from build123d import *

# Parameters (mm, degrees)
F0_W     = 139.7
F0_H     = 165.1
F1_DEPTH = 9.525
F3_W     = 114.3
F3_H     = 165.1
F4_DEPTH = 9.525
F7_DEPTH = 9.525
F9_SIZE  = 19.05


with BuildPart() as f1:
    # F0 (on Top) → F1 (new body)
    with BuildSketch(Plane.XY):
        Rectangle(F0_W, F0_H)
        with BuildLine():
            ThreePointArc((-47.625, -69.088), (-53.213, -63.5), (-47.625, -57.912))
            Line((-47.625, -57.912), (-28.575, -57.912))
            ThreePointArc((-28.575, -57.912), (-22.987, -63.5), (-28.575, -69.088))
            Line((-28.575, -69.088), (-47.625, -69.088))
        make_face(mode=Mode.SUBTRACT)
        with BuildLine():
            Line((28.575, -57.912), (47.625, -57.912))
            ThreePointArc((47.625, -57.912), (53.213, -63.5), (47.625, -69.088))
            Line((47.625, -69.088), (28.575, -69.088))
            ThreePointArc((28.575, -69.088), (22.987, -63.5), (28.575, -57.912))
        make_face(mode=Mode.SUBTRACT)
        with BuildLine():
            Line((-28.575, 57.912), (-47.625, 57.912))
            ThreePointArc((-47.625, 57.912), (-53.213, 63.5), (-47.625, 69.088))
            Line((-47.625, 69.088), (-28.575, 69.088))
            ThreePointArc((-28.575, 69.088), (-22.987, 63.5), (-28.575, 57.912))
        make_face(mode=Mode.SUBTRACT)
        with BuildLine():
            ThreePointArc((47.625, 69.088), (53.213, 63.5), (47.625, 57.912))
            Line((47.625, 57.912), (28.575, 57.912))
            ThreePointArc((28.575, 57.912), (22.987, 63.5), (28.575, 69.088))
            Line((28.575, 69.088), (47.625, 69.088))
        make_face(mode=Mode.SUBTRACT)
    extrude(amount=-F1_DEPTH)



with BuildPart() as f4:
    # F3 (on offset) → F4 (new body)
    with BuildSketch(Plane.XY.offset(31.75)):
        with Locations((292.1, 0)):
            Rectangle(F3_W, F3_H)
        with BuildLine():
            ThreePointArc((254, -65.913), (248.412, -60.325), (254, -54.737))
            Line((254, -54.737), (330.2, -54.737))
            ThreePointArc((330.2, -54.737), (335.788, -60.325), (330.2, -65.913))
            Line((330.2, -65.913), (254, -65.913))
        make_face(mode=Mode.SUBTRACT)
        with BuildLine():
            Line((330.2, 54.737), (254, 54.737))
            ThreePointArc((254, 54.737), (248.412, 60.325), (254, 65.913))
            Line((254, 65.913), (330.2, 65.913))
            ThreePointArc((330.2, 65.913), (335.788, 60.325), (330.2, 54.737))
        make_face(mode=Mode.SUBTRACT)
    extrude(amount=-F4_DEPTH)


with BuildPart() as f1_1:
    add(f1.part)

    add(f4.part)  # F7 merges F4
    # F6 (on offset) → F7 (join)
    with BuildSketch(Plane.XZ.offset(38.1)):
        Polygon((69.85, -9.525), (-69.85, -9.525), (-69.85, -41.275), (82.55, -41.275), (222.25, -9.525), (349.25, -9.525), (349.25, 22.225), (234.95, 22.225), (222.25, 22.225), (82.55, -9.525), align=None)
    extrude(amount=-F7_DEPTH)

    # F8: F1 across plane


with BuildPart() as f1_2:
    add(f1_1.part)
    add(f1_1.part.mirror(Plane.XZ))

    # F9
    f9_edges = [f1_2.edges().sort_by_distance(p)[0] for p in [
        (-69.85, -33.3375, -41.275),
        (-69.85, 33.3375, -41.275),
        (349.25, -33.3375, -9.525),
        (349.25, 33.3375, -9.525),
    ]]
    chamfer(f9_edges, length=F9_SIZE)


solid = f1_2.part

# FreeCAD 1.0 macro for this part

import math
import FreeCAD as App
import Part
import Sketcher
Q = App.Units.Quantity


def edges_at(feature, points):
    """Names of the edges that pass closest to the given points."""
    edges = feature.Shape.Edges
    near = lambda p: min(range(len(edges)), key=lambda i: edges[i].distToShape(Part.Vertex(*p))[0])
    return sorted({f"Edge{near(p) + 1}" for p in points})

doc = App.newDocument("Part")
body = doc.addObject("PartDesign::Body", "Body")

sketch1 = body.newObject("Sketcher::SketchObject", "Sketch")
sketch1.AttachmentSupport = (doc.getObject("XY_Plane"), [""])
sketch1.MapMode = "FlatFace"
sketch1.addGeometry([
    Part.LineSegment(App.Vector(-70, 83, 0), App.Vector(-70, -83, 0)),
    Part.LineSegment(App.Vector(-70, -83, 0), App.Vector(70, -83, 0)),
    Part.LineSegment(App.Vector(70, -83, 0), App.Vector(70, 83, 0)),
    Part.LineSegment(App.Vector(70, 83, 0), App.Vector(-70, 83, 0)),
    Part.LineSegment(App.Vector(-29, -69, 0), App.Vector(-48, -69, 0)),
    Part.ArcOfCircle(Part.Circle(App.Vector(-48, -64, 0), App.Vector(0, 0, 1), 6), math.radians(90), math.radians(270)),
    Part.LineSegment(App.Vector(-48, -58, 0), App.Vector(-29, -58, 0)),
    Part.ArcOfCircle(Part.Circle(App.Vector(-29, -64, 0), App.Vector(0, 0, 1), 6), math.radians(-90), math.radians(90)),
    Part.ArcOfCircle(Part.Circle(App.Vector(29, -64, 0), App.Vector(0, 0, 1), 6), math.radians(90), math.radians(270)),
    Part.LineSegment(App.Vector(29, -58, 0), App.Vector(48, -58, 0)),
    Part.ArcOfCircle(Part.Circle(App.Vector(48, -64, 0), App.Vector(0, 0, 1), 6), math.radians(-90), math.radians(90)),
    Part.LineSegment(App.Vector(48, -69, 0), App.Vector(29, -69, 0)),
    Part.ArcOfCircle(Part.Circle(App.Vector(-29, 64, 0), App.Vector(0, 0, 1), 6), math.radians(-90), math.radians(90)),
    Part.LineSegment(App.Vector(-29, 58, 0), App.Vector(-48, 58, 0)),
    Part.ArcOfCircle(Part.Circle(App.Vector(-48, 64, 0), App.Vector(0, 0, 1), 6), math.radians(90), math.radians(270)),
    Part.LineSegment(App.Vector(-48, 69, 0), App.Vector(-29, 69, 0)),
    Part.LineSegment(App.Vector(29, 69, 0), App.Vector(48, 69, 0)),
    Part.ArcOfCircle(Part.Circle(App.Vector(48, 64, 0), App.Vector(0, 0, 1), 6), math.radians(-90), math.radians(90)),
    Part.LineSegment(App.Vector(48, 58, 0), App.Vector(29, 58, 0)),
    Part.ArcOfCircle(Part.Circle(App.Vector(29, 64, 0), App.Vector(0, 0, 1), 6), math.radians(90), math.radians(270)),
], False)
sketch1.addConstraint([
    Sketcher.Constraint("Coincident", 0, 2, 1, 1),
    Sketcher.Constraint("Coincident", 1, 2, 2, 1),
    Sketcher.Constraint("Coincident", 2, 2, 3, 1),
    Sketcher.Constraint("Coincident", 3, 2, 0, 1),
    Sketcher.Constraint("Tangent", 4, 2, 5, 2),
    Sketcher.Constraint("Tangent", 5, 1, 6, 1),
    Sketcher.Constraint("Tangent", 6, 2, 7, 2),
    Sketcher.Constraint("Tangent", 7, 1, 4, 1),
    Sketcher.Constraint("Tangent", 8, 1, 9, 1),
    Sketcher.Constraint("Tangent", 9, 2, 10, 2),
    Sketcher.Constraint("Tangent", 10, 1, 11, 1),
    Sketcher.Constraint("Tangent", 11, 2, 8, 2),
    Sketcher.Constraint("Tangent", 12, 1, 13, 1),
    Sketcher.Constraint("Tangent", 13, 2, 14, 2),
    Sketcher.Constraint("Tangent", 14, 1, 15, 1),
    Sketcher.Constraint("Tangent", 15, 2, 12, 2),
    Sketcher.Constraint("Tangent", 16, 2, 17, 2),
    Sketcher.Constraint("Tangent", 17, 1, 18, 1),
    Sketcher.Constraint("Tangent", 18, 2, 19, 2),
    Sketcher.Constraint("Tangent", 19, 1, 16, 1),
    Sketcher.Constraint("Vertical", 0),
    Sketcher.Constraint("Horizontal", 1),
    Sketcher.Constraint("Vertical", 2),
    Sketcher.Constraint("Horizontal", 3),
    Sketcher.Constraint("Horizontal", 4),
    Sketcher.Constraint("Horizontal", 6),
    Sketcher.Constraint("Horizontal", 9),
    Sketcher.Constraint("Horizontal", 11),
    Sketcher.Constraint("Horizontal", 13),
    Sketcher.Constraint("Horizontal", 15),
    Sketcher.Constraint("Horizontal", 16),
    Sketcher.Constraint("Horizontal", 18),
    Sketcher.Constraint("Equal", 7, 8),
    Sketcher.Constraint("Equal", 10, 12),
    Sketcher.Constraint("Equal", 14, 17),
    Sketcher.Constraint("Symmetric", 8, 3, 12, 3, -1, 1),
    Sketcher.Constraint("Symmetric", 5, 3, 17, 3, -1, 1),
    Sketcher.Constraint("Symmetric", 0, 2, 2, 2, -1, 1),
    Sketcher.Constraint("Symmetric", 7, 3, 8, 3, -2),
    Sketcher.Constraint("Vertical", 5, 3, 14, 3),
    Sketcher.Constraint("Vertical", 10, 3, 17, 3),
    Sketcher.Constraint("Vertical", 8, 3, 19, 3),
    Sketcher.Constraint("Radius", 5, Q("0.22 in")),
    Sketcher.Constraint("DistanceX", 1, 1, 1, 2, Q("5.5 in")),
    Sketcher.Constraint("DistanceY", 0, 2, 0, 1, Q("6.5 in")),
    Sketcher.Constraint("DistanceX", 5, 3, 8, 3, Q("3 in")),
    Sketcher.Constraint("DistanceY", 7, 3, 12, 3, Q("5 in")),
    Sketcher.Constraint("DistanceX", 4, 2, 4, 1, Q("0.75 in")),
])
pad1 = body.newObject("PartDesign::Pad", "Pad")
pad1.Profile = sketch1
pad1.Length = Q("0.375 in")
pad1.Reversed = True
body2 = doc.addObject("PartDesign::Body", "Body001")

sketch2 = body2.newObject("Sketcher::SketchObject", "Sketch001")
sketch2.AttachmentSupport = (doc.getObject("XY_Plane001"), [""])
sketch2.MapMode = "FlatFace"
sketch2.AttachmentOffset = App.Placement(App.Vector(0, 0, 1.25 * 25.4), App.Rotation())
sketch2.addGeometry([
    Part.LineSegment(App.Vector(235, 83, 0), App.Vector(235, -83, 0)),
    Part.LineSegment(App.Vector(235, -83, 0), App.Vector(349, -83, 0)),
    Part.LineSegment(App.Vector(349, -83, 0), App.Vector(349, 83, 0)),
    Part.LineSegment(App.Vector(349, 83, 0), App.Vector(235, 83, 0)),
    Part.LineSegment(App.Vector(330, -66, 0), App.Vector(254, -66, 0)),
    Part.ArcOfCircle(Part.Circle(App.Vector(254, -60, 0), App.Vector(0, 0, 1), 6), math.radians(90), math.radians(270)),
    Part.LineSegment(App.Vector(254, -55, 0), App.Vector(330, -55, 0)),
    Part.ArcOfCircle(Part.Circle(App.Vector(330, -60, 0), App.Vector(0, 0, 1), 6), math.radians(-90), math.radians(90)),
    Part.ArcOfCircle(Part.Circle(App.Vector(330, 60, 0), App.Vector(0, 0, 1), 6), math.radians(-90), math.radians(90)),
    Part.LineSegment(App.Vector(330, 55, 0), App.Vector(254, 55, 0)),
    Part.ArcOfCircle(Part.Circle(App.Vector(254, 60, 0), App.Vector(0, 0, 1), 6), math.radians(90), math.radians(270)),
    Part.LineSegment(App.Vector(254, 66, 0), App.Vector(330, 66, 0)),
], False)
sketch2.addConstraint([
    Sketcher.Constraint("Coincident", 0, 2, 1, 1),
    Sketcher.Constraint("Coincident", 1, 2, 2, 1),
    Sketcher.Constraint("Coincident", 2, 2, 3, 1),
    Sketcher.Constraint("Coincident", 3, 2, 0, 1),
    Sketcher.Constraint("Tangent", 4, 2, 5, 2),
    Sketcher.Constraint("Tangent", 5, 1, 6, 1),
    Sketcher.Constraint("Tangent", 6, 2, 7, 2),
    Sketcher.Constraint("Tangent", 7, 1, 4, 1),
    Sketcher.Constraint("Tangent", 8, 1, 9, 1),
    Sketcher.Constraint("Tangent", 9, 2, 10, 2),
    Sketcher.Constraint("Tangent", 10, 1, 11, 1),
    Sketcher.Constraint("Tangent", 11, 2, 8, 2),
    Sketcher.Constraint("Vertical", 0),
    Sketcher.Constraint("Horizontal", 1),
    Sketcher.Constraint("Vertical", 2),
    Sketcher.Constraint("Horizontal", 3),
    Sketcher.Constraint("Horizontal", 4),
    Sketcher.Constraint("Horizontal", 6),
    Sketcher.Constraint("Horizontal", 9),
    Sketcher.Constraint("Horizontal", 11),
    Sketcher.Constraint("Equal", 7, 8),
    Sketcher.Constraint("Symmetric", 7, 3, 8, 3, -1),
    Sketcher.Constraint("Vertical", 5, 3, 10, 3),
    Sketcher.Constraint("DistanceX", 4, 2, 4, 1, Q("3 in")),
    Sketcher.Constraint("Radius", 5, Q("0.22 in")),
    Sketcher.Constraint("DistanceX", 1, 1, 1, 2, Q("4.5 in")),
    Sketcher.Constraint("DistanceY", 0, 2, 0, 1, Q("6.5 in")),
    Sketcher.Constraint("DistanceX", -1, 1, 5, 3, Q("10 in")),
    Sketcher.Constraint("DistanceX", -1, 1, 0, 2, Q("9.25 in")),
    Sketcher.Constraint("DistanceY", 0, 2, -1, 1, Q("3.25 in")),
    Sketcher.Constraint("DistanceY", 7, 3, 8, 3, Q("4.75 in")),
])
pad2 = body2.newObject("PartDesign::Pad", "Pad001")
pad2.Profile = sketch2
pad2.Length = Q("0.375 in")
pad2.Reversed = True
body.AllowCompound = True
doc.recompute()

boolean = body.newObject("PartDesign::Boolean", "Boolean")
boolean.Type = "Fuse"
boolean.addObjects([body2])

sketch3 = body.newObject("Sketcher::SketchObject", "Sketch002")
sketch3.AttachmentSupport = (doc.getObject("XZ_Plane"), [""])
sketch3.MapMode = "FlatFace"
sketch3.AttachmentOffset = App.Placement(App.Vector(0, 0, 1.5 * 25.4), App.Rotation())
sketch3.addGeometry([
    Part.LineSegment(App.Vector(-70, -10, 0), App.Vector(-70, -41, 0)),
    Part.LineSegment(App.Vector(-70, -41, 0), App.Vector(83, -41, 0)),
    Part.LineSegment(App.Vector(83, -41, 0), App.Vector(222, -10, 0)),
    Part.LineSegment(App.Vector(222, -10, 0), App.Vector(349, -10, 0)),
    Part.LineSegment(App.Vector(349, -10, 0), App.Vector(349, 22, 0)),
    Part.LineSegment(App.Vector(349, 22, 0), App.Vector(222, 22, 0)),
    Part.LineSegment(App.Vector(222, 22, 0), App.Vector(83, -10, 0)),
    Part.LineSegment(App.Vector(83, -10, 0), App.Vector(-70, -10, 0)),
], False)
sketch3.addConstraint([
    Sketcher.Constraint("Coincident", 0, 2, 1, 1),
    Sketcher.Constraint("Coincident", 1, 2, 2, 1),
    Sketcher.Constraint("Coincident", 2, 2, 3, 1),
    Sketcher.Constraint("Coincident", 3, 2, 4, 1),
    Sketcher.Constraint("Coincident", 4, 2, 5, 1),
    Sketcher.Constraint("Coincident", 5, 2, 6, 1),
    Sketcher.Constraint("Coincident", 6, 2, 7, 1),
    Sketcher.Constraint("Coincident", 7, 2, 0, 1),
    Sketcher.Constraint("Vertical", 0),
    Sketcher.Constraint("Horizontal", 1),
    Sketcher.Constraint("Horizontal", 3),
    Sketcher.Constraint("Vertical", 4),
    Sketcher.Constraint("Horizontal", 5),
    Sketcher.Constraint("Horizontal", 7),
    Sketcher.Constraint("Parallel", 2, 6),
    Sketcher.Constraint("Horizontal", 3, 2, 6, 2),
    Sketcher.Constraint("Vertical", 2, 2, 5, 2),
    Sketcher.Constraint("Vertical", 1, 2, 6, 2),
    Sketcher.Constraint("DistanceX", 1, 1, 1, 2, Q("6 in")),
    Sketcher.Constraint("DistanceX", 3, 1, 3, 2, Q("5 in")),
    Sketcher.Constraint("DistanceY", 0, 2, 0, 1, Q("1.25 in")),
    Sketcher.Constraint("DistanceX", 1, 2, 2, 2, Q("5.5 in")),
    Sketcher.Constraint("DistanceX", 0, 2, -1, 1, Q("2.75 in")),
    Sketcher.Constraint("DistanceY", 0, 2, -1, 1, Q("1.625 in")),
])
pad3 = body.newObject("PartDesign::Pad", "Pad002")
pad3.Profile = sketch3
pad3.Length = Q("0.375 in")
pad3.Reversed = True
body3 = doc.addObject("PartDesign::Body", "Body002")
doc.recompute()

body3.BaseFeature = body
doc.recompute()

mirroring = doc.addObject("Part::Mirroring", "Mirroring")
mirroring.Source = body
mirroring.Base = App.Vector(0, 0, 0)
mirroring.Normal = App.Vector(0, -1, 0)
body4 = doc.addObject("PartDesign::Body", "Body003")
body4.BaseFeature = mirroring
boolean2 = body3.newObject("PartDesign::Boolean", "Boolean001")
boolean2.Type = "Fuse"
boolean2.addObjects([body4])
doc.recompute()

chamfer = body3.newObject("PartDesign::Chamfer", "Chamfer")
chamfer.Base = (boolean2, edges_at(boolean2, [
    (-69.85, -33.337, -41.275),
    (-69.85, 33.337, -41.275),
    (349.25, -33.337, -9.525),
    (349.25, 33.337, -9.525),
]))
chamfer.Size = Q("0.75 in")
mirroring.Visibility = False

doc.recompute()
